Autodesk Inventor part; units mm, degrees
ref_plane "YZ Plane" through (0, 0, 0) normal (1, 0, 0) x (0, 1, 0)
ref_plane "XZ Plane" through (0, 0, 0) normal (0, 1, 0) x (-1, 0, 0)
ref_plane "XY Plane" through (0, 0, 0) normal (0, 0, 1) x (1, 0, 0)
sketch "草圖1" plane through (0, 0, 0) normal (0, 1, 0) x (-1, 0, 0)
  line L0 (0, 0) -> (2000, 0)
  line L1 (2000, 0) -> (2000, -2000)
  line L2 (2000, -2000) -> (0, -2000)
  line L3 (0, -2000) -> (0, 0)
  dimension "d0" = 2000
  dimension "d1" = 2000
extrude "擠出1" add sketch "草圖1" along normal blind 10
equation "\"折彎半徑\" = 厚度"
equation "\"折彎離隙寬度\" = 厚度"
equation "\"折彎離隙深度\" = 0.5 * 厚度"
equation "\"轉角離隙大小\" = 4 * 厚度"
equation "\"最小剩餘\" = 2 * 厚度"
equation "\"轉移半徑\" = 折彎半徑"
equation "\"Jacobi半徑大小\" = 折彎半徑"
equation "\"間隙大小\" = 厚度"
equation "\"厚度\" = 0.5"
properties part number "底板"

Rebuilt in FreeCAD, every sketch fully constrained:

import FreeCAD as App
import Part
import Sketcher

V = App.Vector
Q = App.Units.Quantity

doc = App.newDocument("Part")
params = doc.addObject("Spreadsheet::Sheet", "Params")
for row, (alias, value) in enumerate([
    ("sketch1_width", "2000 mm"),
    ("pad1_length", "10 mm"),
], start=1):
    params.set(f"A{row}", alias)
    params.set(f"B{row}", "=" + value)
    params.setAlias(f"B{row}", alias)

body = doc.addObject("PartDesign::Body", "Body")

# Sketch on XZ plane
sketch1 = body.newObject("Sketcher::SketchObject", "Sketch")
sketch1.AttachmentSupport = (doc.getObject("XZ_Plane"), [""])
sketch1.MapMode = "FlatFace"
sketch1.addGeometry([
    Part.LineSegment(V(-2000, 0, 0), V(0, 0, 0)),
    Part.LineSegment(V(0, 0, 0), V(0, -2000, 0)),
    Part.LineSegment(V(0, -2000, 0), V(-2000, -2000, 0)),
    Part.LineSegment(V(-2000, -2000, 0), V(-2000, 0, 0)),
], False)
sketch1.addConstraint([
    Sketcher.Constraint("Coincident", 0, 2, 1, 1),
    Sketcher.Constraint("Coincident", 1, 2, 2, 1),
    Sketcher.Constraint("Coincident", 2, 2, 3, 1),
    Sketcher.Constraint("Coincident", 3, 2, 0, 1),
    Sketcher.Constraint("Horizontal", 0),
    Sketcher.Constraint("Vertical", 1),
    Sketcher.Constraint("Horizontal", 2),
    Sketcher.Constraint("Vertical", 3),
    Sketcher.Constraint("Coincident", 0, 2, -1, 1),
    Sketcher.Constraint("Equal", 2, 1),
    Sketcher.Constraint("DistanceX", 0, 1, 0, 2, Q("2000 mm")),
])
sketch1.setExpression("Constraints[10]", "Params.sketch1_width")
pad1 = body.newObject("PartDesign::Pad", "Pad")
pad1.Profile = sketch1
pad1.setExpression("Length", "Params.pad1_length")
pad1.Reversed = True

doc.recompute()
